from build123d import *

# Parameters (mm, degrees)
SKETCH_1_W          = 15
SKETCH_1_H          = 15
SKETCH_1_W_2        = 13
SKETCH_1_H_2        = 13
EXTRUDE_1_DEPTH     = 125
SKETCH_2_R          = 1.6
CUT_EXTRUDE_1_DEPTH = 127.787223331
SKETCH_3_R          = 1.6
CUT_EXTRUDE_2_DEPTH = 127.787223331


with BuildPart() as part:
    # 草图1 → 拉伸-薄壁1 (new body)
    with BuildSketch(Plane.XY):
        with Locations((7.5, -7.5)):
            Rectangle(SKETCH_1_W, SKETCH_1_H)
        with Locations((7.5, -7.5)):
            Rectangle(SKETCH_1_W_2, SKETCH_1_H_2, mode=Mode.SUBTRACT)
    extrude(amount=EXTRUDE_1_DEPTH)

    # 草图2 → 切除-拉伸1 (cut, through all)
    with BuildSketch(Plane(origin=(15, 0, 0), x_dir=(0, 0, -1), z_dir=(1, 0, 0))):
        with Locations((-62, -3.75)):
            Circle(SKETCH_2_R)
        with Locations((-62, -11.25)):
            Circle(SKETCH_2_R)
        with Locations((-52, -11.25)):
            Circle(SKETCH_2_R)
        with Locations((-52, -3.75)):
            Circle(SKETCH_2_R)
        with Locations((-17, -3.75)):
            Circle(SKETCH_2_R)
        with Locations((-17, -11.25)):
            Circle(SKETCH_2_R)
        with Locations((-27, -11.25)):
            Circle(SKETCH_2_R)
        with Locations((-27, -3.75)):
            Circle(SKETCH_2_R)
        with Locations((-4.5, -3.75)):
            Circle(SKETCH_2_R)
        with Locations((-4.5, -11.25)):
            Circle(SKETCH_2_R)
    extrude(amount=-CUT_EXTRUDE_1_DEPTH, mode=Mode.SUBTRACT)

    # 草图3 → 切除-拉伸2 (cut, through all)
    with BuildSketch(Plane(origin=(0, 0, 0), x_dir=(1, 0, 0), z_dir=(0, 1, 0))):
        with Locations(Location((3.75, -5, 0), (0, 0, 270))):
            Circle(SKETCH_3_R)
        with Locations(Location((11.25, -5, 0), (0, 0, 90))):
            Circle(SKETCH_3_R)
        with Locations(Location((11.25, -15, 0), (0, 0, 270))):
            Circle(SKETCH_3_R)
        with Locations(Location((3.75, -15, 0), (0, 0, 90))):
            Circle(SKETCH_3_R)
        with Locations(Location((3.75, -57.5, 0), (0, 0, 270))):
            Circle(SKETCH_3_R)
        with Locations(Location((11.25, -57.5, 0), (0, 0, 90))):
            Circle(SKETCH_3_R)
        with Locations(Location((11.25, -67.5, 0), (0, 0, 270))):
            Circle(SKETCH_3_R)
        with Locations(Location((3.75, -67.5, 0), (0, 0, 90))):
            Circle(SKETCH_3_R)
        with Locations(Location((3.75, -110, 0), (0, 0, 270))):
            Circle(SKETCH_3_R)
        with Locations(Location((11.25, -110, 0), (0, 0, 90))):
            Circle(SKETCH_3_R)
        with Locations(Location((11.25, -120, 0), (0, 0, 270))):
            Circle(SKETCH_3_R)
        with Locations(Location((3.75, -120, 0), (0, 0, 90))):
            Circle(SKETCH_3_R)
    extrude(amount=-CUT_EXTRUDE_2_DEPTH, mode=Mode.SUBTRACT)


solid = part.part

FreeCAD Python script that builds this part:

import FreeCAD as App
import Part
import Sketcher
from FreeCAD import Vector
Q = App.Units.Quantity


def add_polygon(sketch, points):
    """Adds a closed chain of lines whose ends are joined by coincident constraints."""
    first, n = sketch.GeometryCount, len(points)
    for a, b in zip(points, points[1:] + points[:1]):
        sketch.addGeometry(Part.LineSegment(App.Vector(*a, 0), App.Vector(*b, 0)), False)
    for i in range(n):
        sketch.addConstraint(Sketcher.Constraint("Coincident", first + i, 2, first + (i + 1) % n, 1))

doc = App.newDocument("Part")
params = doc.addObject("Spreadsheet::Sheet", "Params")
for row, (alias, value) in enumerate([
    ("sketch1_width", "15 mm"),
    ("sketch1_width2", "13 mm"),
    ("pad1_length", "125 mm"),
    ("sketch2_diameter", "3.2 mm"),
    ("sketch3_diameter", "3.2 mm"),
], start=1):
    params.set(f"A{row}", alias)
    params.set(f"B{row}", "=" + value)
    params.setAlias(f"B{row}", alias)

body = doc.addObject("PartDesign::Body", "Body")

# Sketch on XY plane
sketch1 = doc.addObject("Sketcher::SketchObject", "Sketch")
body.addObject(sketch1)
sketch1.AttachmentSupport = (doc.XY_Plane, [""])
sketch1.MapMode = "FlatFace"
add_polygon(sketch1, [(0, 0), (0, -15), (15, -15), (15, 0)])  # lines 0-3
add_polygon(sketch1, [(14, -14), (1, -14), (1, -1), (14, -1)])  # lines 4-7
sketch1.addConstraint(Sketcher.Constraint("Vertical", 0))
sketch1.addConstraint(Sketcher.Constraint("Horizontal", 1))
sketch1.addConstraint(Sketcher.Constraint("Vertical", 2))
sketch1.addConstraint(Sketcher.Constraint("Horizontal", 3))
sketch1.addConstraint(Sketcher.Constraint("Horizontal", 4))
sketch1.addConstraint(Sketcher.Constraint("Vertical", 5))
sketch1.addConstraint(Sketcher.Constraint("Horizontal", 6))
sketch1.addConstraint(Sketcher.Constraint("Vertical", 7))
sketch1.addConstraint(Sketcher.Constraint("Coincident", 3, 2, -1, 1))
sketch1.addConstraint(Sketcher.Constraint("Equal", 3, 0))
sketch1.addConstraint(Sketcher.Constraint("Equal", 6, 5))
sketch1.addConstraint(Sketcher.Constraint("DistanceX", 1, 1, 1, 2, Q("15 mm")))
sketch1.addConstraint(Sketcher.Constraint("DistanceX", 4, 2, 4, 1, Q("13 mm")))
sketch1.addConstraint(Sketcher.Constraint("DistanceX", -1, 1, 4, 2, Q("1 mm")))
sketch1.addConstraint(Sketcher.Constraint("DistanceY", 4, 2, -1, 1, Q("14 mm")))
sketch1.setExpression("Constraints[19]", "Params.sketch1_width")
sketch1.setExpression("Constraints[20]", "Params.sketch1_width2")
pad1 = doc.addObject("PartDesign::Pad", "Pad")
body.addObject(pad1)
pad1.Profile = sketch1
pad1.setExpression("Length", "Params.pad1_length")

# Sketch on YZ plane
sketch2 = doc.addObject("Sketcher::SketchObject", "Sketch001")
body.addObject(sketch2)
sketch2.AttachmentSupport = (doc.YZ_Plane, [""])
sketch2.MapMode = "FlatFace"
sketch2.AttachmentOffset = App.Placement(Vector(0, 0, 15), App.Rotation())
sketch2.addGeometry(Part.Circle(Vector(-3.8, 62, 0), Vector(0, 0, 1), 1.6), False)
sketch2.addGeometry(Part.Circle(Vector(-11.2, 62, 0), Vector(0, 0, 1), 1.6), False)
sketch2.addGeometry(Part.Circle(Vector(-11.2, 52, 0), Vector(0, 0, 1), 1.6), False)
sketch2.addGeometry(Part.Circle(Vector(-3.8, 52, 0), Vector(0, 0, 1), 1.6), False)
sketch2.addGeometry(Part.Circle(Vector(-3.8, 17, 0), Vector(0, 0, 1), 1.6), False)
sketch2.addGeometry(Part.Circle(Vector(-11.2, 17, 0), Vector(0, 0, 1), 1.6), False)
sketch2.addGeometry(Part.Circle(Vector(-11.2, 27, 0), Vector(0, 0, 1), 1.6), False)
sketch2.addGeometry(Part.Circle(Vector(-3.8, 27, 0), Vector(0, 0, 1), 1.6), False)
sketch2.addGeometry(Part.Circle(Vector(-3.8, 4.5, 0), Vector(0, 0, 1), 1.6), False)
sketch2.addGeometry(Part.Circle(Vector(-11.2, 4.5, 0), Vector(0, 0, 1), 1.6), False)
sketch2.addConstraint(Sketcher.Constraint("Equal", 0, 1))
sketch2.addConstraint(Sketcher.Constraint("Equal", 1, 2))
sketch2.addConstraint(Sketcher.Constraint("Equal", 2, 3))
sketch2.addConstraint(Sketcher.Constraint("Equal", 3, 4))
sketch2.addConstraint(Sketcher.Constraint("Equal", 4, 5))
sketch2.addConstraint(Sketcher.Constraint("Equal", 5, 6))
sketch2.addConstraint(Sketcher.Constraint("Equal", 6, 7))
sketch2.addConstraint(Sketcher.Constraint("Equal", 7, 8))
sketch2.addConstraint(Sketcher.Constraint("Equal", 8, 9))
sketch2.addConstraint(Sketcher.Constraint("Horizontal", 0, 3, 1, 3))
sketch2.addConstraint(Sketcher.Constraint("Horizontal", 2, 3, 3, 3))
sketch2.addConstraint(Sketcher.Constraint("Horizontal", 4, 3, 5, 3))
sketch2.addConstraint(Sketcher.Constraint("Horizontal", 6, 3, 7, 3))
sketch2.addConstraint(Sketcher.Constraint("Horizontal", 8, 3, 9, 3))
sketch2.addConstraint(Sketcher.Constraint("Vertical", 1, 3, 2, 3))
sketch2.addConstraint(Sketcher.Constraint("Vertical", 0, 3, 3, 3))
sketch2.addConstraint(Sketcher.Constraint("Vertical", 3, 3, 4, 3))
sketch2.addConstraint(Sketcher.Constraint("Vertical", 2, 3, 5, 3))
sketch2.addConstraint(Sketcher.Constraint("Vertical", 5, 3, 6, 3))
sketch2.addConstraint(Sketcher.Constraint("Vertical", 4, 3, 7, 3))
sketch2.addConstraint(Sketcher.Constraint("Vertical", 7, 3, 8, 3))
sketch2.addConstraint(Sketcher.Constraint("Vertical", 6, 3, 9, 3))
sketch2.addConstraint(Sketcher.Constraint("Diameter", 0, Q("3.2 mm")))
sketch2.addConstraint(Sketcher.Constraint("DistanceY", -1, 1, 0, 3, Q("62 mm")))
sketch2.addConstraint(Sketcher.Constraint("DistanceY", -1, 1, 2, 3, Q("52 mm")))
sketch2.addConstraint(Sketcher.Constraint("DistanceY", -1, 1, 4, 3, Q("17 mm")))
sketch2.addConstraint(Sketcher.Constraint("DistanceY", -1, 1, 6, 3, Q("27 mm")))
sketch2.addConstraint(Sketcher.Constraint("DistanceY", -1, 1, 8, 3, Q("4.5 mm")))
sketch2.addConstraint(Sketcher.Constraint("DistanceX", 1, 3, 0, 3, Q("7.5 mm")))
sketch2.addConstraint(Sketcher.Constraint("DistanceX", 0, 3, -1, 1, Q("3.75 mm")))
sketch2.setExpression("Constraints[22]", "Params.sketch2_diameter")
pocket1 = doc.addObject("PartDesign::Pocket", "Pocket")
body.addObject(pocket1)
pocket1.Profile = sketch2
pocket1.Type = "ThroughAll"

# Sketch on XZ plane
sketch3 = doc.addObject("Sketcher::SketchObject", "Sketch002")
body.addObject(sketch3)
sketch3.AttachmentSupport = (doc.XZ_Plane, [""])
sketch3.MapMode = "FlatFace"
sketch3.addGeometry(Part.Circle(Vector(3.8, 5, 0), Vector(0, 0, 1), 1.6), False)
sketch3.addGeometry(Part.Circle(Vector(11.2, 5, 0), Vector(0, 0, 1), 1.6), False)
sketch3.addGeometry(Part.Circle(Vector(11.2, 15, 0), Vector(0, 0, 1), 1.6), False)
sketch3.addGeometry(Part.Circle(Vector(3.8, 15, 0), Vector(0, 0, 1), 1.6), False)
sketch3.addGeometry(Part.Circle(Vector(3.8, 57.5, 0), Vector(0, 0, 1), 1.6), False)
sketch3.addGeometry(Part.Circle(Vector(11.2, 57.5, 0), Vector(0, 0, 1), 1.6), False)
sketch3.addGeometry(Part.Circle(Vector(11.2, 67.5, 0), Vector(0, 0, 1), 1.6), False)
sketch3.addGeometry(Part.Circle(Vector(3.8, 67.5, 0), Vector(0, 0, 1), 1.6), False)
sketch3.addGeometry(Part.Circle(Vector(3.8, 110, 0), Vector(0, 0, 1), 1.6), False)
sketch3.addGeometry(Part.Circle(Vector(11.2, 110, 0), Vector(0, 0, 1), 1.6), False)
sketch3.addGeometry(Part.Circle(Vector(11.2, 120, 0), Vector(0, 0, 1), 1.6), False)
sketch3.addGeometry(Part.Circle(Vector(3.8, 120, 0), Vector(0, 0, 1), 1.6), False)
sketch3.addConstraint(Sketcher.Constraint("Equal", 0, 1))
sketch3.addConstraint(Sketcher.Constraint("Equal", 1, 2))
sketch3.addConstraint(Sketcher.Constraint("Equal", 2, 3))
sketch3.addConstraint(Sketcher.Constraint("Equal", 3, 4))
sketch3.addConstraint(Sketcher.Constraint("Equal", 4, 5))
sketch3.addConstraint(Sketcher.Constraint("Equal", 5, 6))
sketch3.addConstraint(Sketcher.Constraint("Equal", 6, 7))
sketch3.addConstraint(Sketcher.Constraint("Equal", 7, 8))
sketch3.addConstraint(Sketcher.Constraint("Equal", 8, 9))
sketch3.addConstraint(Sketcher.Constraint("Equal", 9, 10))
sketch3.addConstraint(Sketcher.Constraint("Equal", 10, 11))
sketch3.addConstraint(Sketcher.Constraint("Horizontal", 0, 3, 1, 3))
sketch3.addConstraint(Sketcher.Constraint("Horizontal", 2, 3, 3, 3))
sketch3.addConstraint(Sketcher.Constraint("Horizontal", 4, 3, 5, 3))
sketch3.addConstraint(Sketcher.Constraint("Horizontal", 6, 3, 7, 3))
sketch3.addConstraint(Sketcher.Constraint("Horizontal", 8, 3, 9, 3))
sketch3.addConstraint(Sketcher.Constraint("Horizontal", 10, 3, 11, 3))
sketch3.addConstraint(Sketcher.Constraint("Vertical", 1, 3, 2, 3))
sketch3.addConstraint(Sketcher.Constraint("Vertical", 0, 3, 3, 3))
sketch3.addConstraint(Sketcher.Constraint("Vertical", 3, 3, 4, 3))
sketch3.addConstraint(Sketcher.Constraint("Vertical", 2, 3, 5, 3))
sketch3.addConstraint(Sketcher.Constraint("Vertical", 5, 3, 6, 3))
sketch3.addConstraint(Sketcher.Constraint("Vertical", 4, 3, 7, 3))
sketch3.addConstraint(Sketcher.Constraint("Vertical", 7, 3, 8, 3))
sketch3.addConstraint(Sketcher.Constraint("Vertical", 6, 3, 9, 3))
sketch3.addConstraint(Sketcher.Constraint("Vertical", 9, 3, 10, 3))
sketch3.addConstraint(Sketcher.Constraint("Vertical", 8, 3, 11, 3))
sketch3.addConstraint(Sketcher.Constraint("Diameter", 0, Q("3.2 mm")))
sketch3.addConstraint(Sketcher.Constraint("DistanceY", -1, 1, 0, 3, Q("5 mm")))
sketch3.addConstraint(Sketcher.Constraint("DistanceY", -1, 1, 2, 3, Q("15 mm")))
sketch3.addConstraint(Sketcher.Constraint("DistanceY", -1, 1, 8, 3, Q("110 mm")))
sketch3.addConstraint(Sketcher.Constraint("DistanceY", -1, 1, 10, 3, Q("120 mm")))
sketch3.addConstraint(Sketcher.Constraint("DistanceY", 5, 3, 6, 3, Q("10 mm")))
sketch3.addConstraint(Sketcher.Constraint("DistanceY", -1, 1, 4, 3, Q("57.5 mm")))
sketch3.addConstraint(Sketcher.Constraint("DistanceX", 0, 3, 1, 3, Q("7.5 mm")))
sketch3.addConstraint(Sketcher.Constraint("DistanceX", -1, 1, 0, 3, Q("3.75 mm")))
sketch3.setExpression("Constraints[27]", "Params.sketch3_diameter")
pocket2 = doc.addObject("PartDesign::Pocket", "Pocket001")
body.addObject(pocket2)
pocket2.Profile = sketch3
pocket2.Type = "ThroughAll"
pocket2.Reversed = True

doc.recompute()
